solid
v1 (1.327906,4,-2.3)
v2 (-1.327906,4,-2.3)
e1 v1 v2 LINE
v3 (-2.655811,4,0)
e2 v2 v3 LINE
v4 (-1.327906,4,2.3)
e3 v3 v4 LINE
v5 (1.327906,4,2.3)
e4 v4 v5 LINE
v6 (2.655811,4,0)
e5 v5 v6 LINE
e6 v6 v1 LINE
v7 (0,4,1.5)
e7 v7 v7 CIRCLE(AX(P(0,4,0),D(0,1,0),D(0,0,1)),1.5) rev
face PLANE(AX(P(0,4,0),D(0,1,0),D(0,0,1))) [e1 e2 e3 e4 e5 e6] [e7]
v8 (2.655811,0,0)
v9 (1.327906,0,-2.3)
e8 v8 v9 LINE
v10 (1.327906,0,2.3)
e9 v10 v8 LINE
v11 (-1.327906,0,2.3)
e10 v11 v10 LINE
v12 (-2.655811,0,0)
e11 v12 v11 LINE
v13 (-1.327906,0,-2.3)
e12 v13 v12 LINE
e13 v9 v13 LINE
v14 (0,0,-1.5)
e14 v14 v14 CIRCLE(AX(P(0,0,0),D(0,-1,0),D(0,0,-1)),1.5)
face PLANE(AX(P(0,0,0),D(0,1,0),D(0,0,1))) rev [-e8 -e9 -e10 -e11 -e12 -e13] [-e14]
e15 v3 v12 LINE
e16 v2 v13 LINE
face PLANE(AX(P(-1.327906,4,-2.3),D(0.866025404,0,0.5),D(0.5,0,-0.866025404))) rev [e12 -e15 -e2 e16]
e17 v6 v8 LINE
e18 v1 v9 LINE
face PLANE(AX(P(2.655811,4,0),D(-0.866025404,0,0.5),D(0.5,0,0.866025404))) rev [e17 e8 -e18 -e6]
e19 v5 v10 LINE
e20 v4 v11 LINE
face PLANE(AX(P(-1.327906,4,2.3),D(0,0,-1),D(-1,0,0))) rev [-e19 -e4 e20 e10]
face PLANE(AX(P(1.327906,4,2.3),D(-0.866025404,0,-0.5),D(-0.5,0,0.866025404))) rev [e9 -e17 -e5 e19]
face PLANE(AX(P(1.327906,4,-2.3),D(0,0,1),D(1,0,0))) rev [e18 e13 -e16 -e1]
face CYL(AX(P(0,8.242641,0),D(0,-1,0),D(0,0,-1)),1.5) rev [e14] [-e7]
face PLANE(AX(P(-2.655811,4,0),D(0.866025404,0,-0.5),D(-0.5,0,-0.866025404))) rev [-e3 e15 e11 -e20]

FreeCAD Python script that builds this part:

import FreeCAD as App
import Part
import Sketcher
from FreeCAD import Vector
Q = App.Units.Quantity

doc = App.newDocument("Part")
body = doc.addObject("PartDesign::Body", "Body")

# Sketch on XZ plane
sketch1 = doc.addObject("Sketcher::SketchObject", "Sketch")
body.addObject(sketch1)
sketch1.AttachmentSupport = (doc.XZ_Plane, [""])
sketch1.MapMode = "FlatFace"
sketch1.addGeometry([
    Part.LineSegment(Vector(-1.3, -2.3, 0), Vector(-2.7, 0, 0)),  # 0
    Part.LineSegment(Vector(-2.7, 0, 0), Vector(-1.3, 2.3, 0)),  # 1
    Part.LineSegment(Vector(-1.3, 2.3, 0), Vector(1.3, 2.3, 0)),  # 2
    Part.LineSegment(Vector(1.3, 2.3, 0), Vector(2.7, 0, 0)),  # 3
    Part.LineSegment(Vector(2.7, 0, 0), Vector(1.3, -2.3, 0)),  # 4
    Part.LineSegment(Vector(1.3, -2.3, 0), Vector(-1.3, -2.3, 0)),  # 5
], False)
sketch1.addConstraint([
    Sketcher.Constraint("Coincident", 0, 2, 1, 1),
    Sketcher.Constraint("Coincident", 1, 2, 2, 1),
    Sketcher.Constraint("Coincident", 2, 2, 3, 1),
    Sketcher.Constraint("Coincident", 3, 2, 4, 1),
    Sketcher.Constraint("Coincident", 4, 2, 5, 1),
    Sketcher.Constraint("Coincident", 5, 2, 0, 1),
    Sketcher.Constraint("Horizontal", 2),
    Sketcher.Constraint("Horizontal", 5),
    Sketcher.Constraint("Symmetric", 0, 2, 3, 2, -1, 1),
    Sketcher.Constraint("Symmetric", 1, 2, 4, 2, -1, 1),
    Sketcher.Constraint("PointOnObject", 0, 2, -1),
    Sketcher.Constraint("Parallel", 0, 3),
    Sketcher.Constraint("Vertical", 2, 2, 4, 2),
    Sketcher.Constraint("Angle", 0, Q("120 deg")),
    Sketcher.Constraint("DistanceY", -1, 1, 1, 2, Q("2.3 mm")),
    Sketcher.Constraint("DistanceX", 2, 1, 2, 2, Q("2.655811 mm")),
])
pad1 = doc.addObject("PartDesign::Pad", "Pad")
body.addObject(pad1)
pad1.Profile = sketch1
pad1.Length = 4
pad1.Reversed = True

# Sketch on XZ plane
sketch2 = doc.addObject("Sketcher::SketchObject", "Sketch001")
body.addObject(sketch2)
sketch2.AttachmentSupport = (doc.XZ_Plane, [""])
sketch2.MapMode = "FlatFace"
sketch2.addGeometry(Part.Circle(Vector(0, 0, 0), Vector(0, 0, 1), 1.5), False)
sketch2.addConstraint([
    Sketcher.Constraint("Coincident", 0, 3, -1, 1),
    Sketcher.Constraint("Diameter", 0, Q("3 mm")),
])
pocket1 = doc.addObject("PartDesign::Pocket", "Pocket")
body.addObject(pocket1)
pocket1.Profile = sketch2
pocket1.Length = 4

doc.recompute()
